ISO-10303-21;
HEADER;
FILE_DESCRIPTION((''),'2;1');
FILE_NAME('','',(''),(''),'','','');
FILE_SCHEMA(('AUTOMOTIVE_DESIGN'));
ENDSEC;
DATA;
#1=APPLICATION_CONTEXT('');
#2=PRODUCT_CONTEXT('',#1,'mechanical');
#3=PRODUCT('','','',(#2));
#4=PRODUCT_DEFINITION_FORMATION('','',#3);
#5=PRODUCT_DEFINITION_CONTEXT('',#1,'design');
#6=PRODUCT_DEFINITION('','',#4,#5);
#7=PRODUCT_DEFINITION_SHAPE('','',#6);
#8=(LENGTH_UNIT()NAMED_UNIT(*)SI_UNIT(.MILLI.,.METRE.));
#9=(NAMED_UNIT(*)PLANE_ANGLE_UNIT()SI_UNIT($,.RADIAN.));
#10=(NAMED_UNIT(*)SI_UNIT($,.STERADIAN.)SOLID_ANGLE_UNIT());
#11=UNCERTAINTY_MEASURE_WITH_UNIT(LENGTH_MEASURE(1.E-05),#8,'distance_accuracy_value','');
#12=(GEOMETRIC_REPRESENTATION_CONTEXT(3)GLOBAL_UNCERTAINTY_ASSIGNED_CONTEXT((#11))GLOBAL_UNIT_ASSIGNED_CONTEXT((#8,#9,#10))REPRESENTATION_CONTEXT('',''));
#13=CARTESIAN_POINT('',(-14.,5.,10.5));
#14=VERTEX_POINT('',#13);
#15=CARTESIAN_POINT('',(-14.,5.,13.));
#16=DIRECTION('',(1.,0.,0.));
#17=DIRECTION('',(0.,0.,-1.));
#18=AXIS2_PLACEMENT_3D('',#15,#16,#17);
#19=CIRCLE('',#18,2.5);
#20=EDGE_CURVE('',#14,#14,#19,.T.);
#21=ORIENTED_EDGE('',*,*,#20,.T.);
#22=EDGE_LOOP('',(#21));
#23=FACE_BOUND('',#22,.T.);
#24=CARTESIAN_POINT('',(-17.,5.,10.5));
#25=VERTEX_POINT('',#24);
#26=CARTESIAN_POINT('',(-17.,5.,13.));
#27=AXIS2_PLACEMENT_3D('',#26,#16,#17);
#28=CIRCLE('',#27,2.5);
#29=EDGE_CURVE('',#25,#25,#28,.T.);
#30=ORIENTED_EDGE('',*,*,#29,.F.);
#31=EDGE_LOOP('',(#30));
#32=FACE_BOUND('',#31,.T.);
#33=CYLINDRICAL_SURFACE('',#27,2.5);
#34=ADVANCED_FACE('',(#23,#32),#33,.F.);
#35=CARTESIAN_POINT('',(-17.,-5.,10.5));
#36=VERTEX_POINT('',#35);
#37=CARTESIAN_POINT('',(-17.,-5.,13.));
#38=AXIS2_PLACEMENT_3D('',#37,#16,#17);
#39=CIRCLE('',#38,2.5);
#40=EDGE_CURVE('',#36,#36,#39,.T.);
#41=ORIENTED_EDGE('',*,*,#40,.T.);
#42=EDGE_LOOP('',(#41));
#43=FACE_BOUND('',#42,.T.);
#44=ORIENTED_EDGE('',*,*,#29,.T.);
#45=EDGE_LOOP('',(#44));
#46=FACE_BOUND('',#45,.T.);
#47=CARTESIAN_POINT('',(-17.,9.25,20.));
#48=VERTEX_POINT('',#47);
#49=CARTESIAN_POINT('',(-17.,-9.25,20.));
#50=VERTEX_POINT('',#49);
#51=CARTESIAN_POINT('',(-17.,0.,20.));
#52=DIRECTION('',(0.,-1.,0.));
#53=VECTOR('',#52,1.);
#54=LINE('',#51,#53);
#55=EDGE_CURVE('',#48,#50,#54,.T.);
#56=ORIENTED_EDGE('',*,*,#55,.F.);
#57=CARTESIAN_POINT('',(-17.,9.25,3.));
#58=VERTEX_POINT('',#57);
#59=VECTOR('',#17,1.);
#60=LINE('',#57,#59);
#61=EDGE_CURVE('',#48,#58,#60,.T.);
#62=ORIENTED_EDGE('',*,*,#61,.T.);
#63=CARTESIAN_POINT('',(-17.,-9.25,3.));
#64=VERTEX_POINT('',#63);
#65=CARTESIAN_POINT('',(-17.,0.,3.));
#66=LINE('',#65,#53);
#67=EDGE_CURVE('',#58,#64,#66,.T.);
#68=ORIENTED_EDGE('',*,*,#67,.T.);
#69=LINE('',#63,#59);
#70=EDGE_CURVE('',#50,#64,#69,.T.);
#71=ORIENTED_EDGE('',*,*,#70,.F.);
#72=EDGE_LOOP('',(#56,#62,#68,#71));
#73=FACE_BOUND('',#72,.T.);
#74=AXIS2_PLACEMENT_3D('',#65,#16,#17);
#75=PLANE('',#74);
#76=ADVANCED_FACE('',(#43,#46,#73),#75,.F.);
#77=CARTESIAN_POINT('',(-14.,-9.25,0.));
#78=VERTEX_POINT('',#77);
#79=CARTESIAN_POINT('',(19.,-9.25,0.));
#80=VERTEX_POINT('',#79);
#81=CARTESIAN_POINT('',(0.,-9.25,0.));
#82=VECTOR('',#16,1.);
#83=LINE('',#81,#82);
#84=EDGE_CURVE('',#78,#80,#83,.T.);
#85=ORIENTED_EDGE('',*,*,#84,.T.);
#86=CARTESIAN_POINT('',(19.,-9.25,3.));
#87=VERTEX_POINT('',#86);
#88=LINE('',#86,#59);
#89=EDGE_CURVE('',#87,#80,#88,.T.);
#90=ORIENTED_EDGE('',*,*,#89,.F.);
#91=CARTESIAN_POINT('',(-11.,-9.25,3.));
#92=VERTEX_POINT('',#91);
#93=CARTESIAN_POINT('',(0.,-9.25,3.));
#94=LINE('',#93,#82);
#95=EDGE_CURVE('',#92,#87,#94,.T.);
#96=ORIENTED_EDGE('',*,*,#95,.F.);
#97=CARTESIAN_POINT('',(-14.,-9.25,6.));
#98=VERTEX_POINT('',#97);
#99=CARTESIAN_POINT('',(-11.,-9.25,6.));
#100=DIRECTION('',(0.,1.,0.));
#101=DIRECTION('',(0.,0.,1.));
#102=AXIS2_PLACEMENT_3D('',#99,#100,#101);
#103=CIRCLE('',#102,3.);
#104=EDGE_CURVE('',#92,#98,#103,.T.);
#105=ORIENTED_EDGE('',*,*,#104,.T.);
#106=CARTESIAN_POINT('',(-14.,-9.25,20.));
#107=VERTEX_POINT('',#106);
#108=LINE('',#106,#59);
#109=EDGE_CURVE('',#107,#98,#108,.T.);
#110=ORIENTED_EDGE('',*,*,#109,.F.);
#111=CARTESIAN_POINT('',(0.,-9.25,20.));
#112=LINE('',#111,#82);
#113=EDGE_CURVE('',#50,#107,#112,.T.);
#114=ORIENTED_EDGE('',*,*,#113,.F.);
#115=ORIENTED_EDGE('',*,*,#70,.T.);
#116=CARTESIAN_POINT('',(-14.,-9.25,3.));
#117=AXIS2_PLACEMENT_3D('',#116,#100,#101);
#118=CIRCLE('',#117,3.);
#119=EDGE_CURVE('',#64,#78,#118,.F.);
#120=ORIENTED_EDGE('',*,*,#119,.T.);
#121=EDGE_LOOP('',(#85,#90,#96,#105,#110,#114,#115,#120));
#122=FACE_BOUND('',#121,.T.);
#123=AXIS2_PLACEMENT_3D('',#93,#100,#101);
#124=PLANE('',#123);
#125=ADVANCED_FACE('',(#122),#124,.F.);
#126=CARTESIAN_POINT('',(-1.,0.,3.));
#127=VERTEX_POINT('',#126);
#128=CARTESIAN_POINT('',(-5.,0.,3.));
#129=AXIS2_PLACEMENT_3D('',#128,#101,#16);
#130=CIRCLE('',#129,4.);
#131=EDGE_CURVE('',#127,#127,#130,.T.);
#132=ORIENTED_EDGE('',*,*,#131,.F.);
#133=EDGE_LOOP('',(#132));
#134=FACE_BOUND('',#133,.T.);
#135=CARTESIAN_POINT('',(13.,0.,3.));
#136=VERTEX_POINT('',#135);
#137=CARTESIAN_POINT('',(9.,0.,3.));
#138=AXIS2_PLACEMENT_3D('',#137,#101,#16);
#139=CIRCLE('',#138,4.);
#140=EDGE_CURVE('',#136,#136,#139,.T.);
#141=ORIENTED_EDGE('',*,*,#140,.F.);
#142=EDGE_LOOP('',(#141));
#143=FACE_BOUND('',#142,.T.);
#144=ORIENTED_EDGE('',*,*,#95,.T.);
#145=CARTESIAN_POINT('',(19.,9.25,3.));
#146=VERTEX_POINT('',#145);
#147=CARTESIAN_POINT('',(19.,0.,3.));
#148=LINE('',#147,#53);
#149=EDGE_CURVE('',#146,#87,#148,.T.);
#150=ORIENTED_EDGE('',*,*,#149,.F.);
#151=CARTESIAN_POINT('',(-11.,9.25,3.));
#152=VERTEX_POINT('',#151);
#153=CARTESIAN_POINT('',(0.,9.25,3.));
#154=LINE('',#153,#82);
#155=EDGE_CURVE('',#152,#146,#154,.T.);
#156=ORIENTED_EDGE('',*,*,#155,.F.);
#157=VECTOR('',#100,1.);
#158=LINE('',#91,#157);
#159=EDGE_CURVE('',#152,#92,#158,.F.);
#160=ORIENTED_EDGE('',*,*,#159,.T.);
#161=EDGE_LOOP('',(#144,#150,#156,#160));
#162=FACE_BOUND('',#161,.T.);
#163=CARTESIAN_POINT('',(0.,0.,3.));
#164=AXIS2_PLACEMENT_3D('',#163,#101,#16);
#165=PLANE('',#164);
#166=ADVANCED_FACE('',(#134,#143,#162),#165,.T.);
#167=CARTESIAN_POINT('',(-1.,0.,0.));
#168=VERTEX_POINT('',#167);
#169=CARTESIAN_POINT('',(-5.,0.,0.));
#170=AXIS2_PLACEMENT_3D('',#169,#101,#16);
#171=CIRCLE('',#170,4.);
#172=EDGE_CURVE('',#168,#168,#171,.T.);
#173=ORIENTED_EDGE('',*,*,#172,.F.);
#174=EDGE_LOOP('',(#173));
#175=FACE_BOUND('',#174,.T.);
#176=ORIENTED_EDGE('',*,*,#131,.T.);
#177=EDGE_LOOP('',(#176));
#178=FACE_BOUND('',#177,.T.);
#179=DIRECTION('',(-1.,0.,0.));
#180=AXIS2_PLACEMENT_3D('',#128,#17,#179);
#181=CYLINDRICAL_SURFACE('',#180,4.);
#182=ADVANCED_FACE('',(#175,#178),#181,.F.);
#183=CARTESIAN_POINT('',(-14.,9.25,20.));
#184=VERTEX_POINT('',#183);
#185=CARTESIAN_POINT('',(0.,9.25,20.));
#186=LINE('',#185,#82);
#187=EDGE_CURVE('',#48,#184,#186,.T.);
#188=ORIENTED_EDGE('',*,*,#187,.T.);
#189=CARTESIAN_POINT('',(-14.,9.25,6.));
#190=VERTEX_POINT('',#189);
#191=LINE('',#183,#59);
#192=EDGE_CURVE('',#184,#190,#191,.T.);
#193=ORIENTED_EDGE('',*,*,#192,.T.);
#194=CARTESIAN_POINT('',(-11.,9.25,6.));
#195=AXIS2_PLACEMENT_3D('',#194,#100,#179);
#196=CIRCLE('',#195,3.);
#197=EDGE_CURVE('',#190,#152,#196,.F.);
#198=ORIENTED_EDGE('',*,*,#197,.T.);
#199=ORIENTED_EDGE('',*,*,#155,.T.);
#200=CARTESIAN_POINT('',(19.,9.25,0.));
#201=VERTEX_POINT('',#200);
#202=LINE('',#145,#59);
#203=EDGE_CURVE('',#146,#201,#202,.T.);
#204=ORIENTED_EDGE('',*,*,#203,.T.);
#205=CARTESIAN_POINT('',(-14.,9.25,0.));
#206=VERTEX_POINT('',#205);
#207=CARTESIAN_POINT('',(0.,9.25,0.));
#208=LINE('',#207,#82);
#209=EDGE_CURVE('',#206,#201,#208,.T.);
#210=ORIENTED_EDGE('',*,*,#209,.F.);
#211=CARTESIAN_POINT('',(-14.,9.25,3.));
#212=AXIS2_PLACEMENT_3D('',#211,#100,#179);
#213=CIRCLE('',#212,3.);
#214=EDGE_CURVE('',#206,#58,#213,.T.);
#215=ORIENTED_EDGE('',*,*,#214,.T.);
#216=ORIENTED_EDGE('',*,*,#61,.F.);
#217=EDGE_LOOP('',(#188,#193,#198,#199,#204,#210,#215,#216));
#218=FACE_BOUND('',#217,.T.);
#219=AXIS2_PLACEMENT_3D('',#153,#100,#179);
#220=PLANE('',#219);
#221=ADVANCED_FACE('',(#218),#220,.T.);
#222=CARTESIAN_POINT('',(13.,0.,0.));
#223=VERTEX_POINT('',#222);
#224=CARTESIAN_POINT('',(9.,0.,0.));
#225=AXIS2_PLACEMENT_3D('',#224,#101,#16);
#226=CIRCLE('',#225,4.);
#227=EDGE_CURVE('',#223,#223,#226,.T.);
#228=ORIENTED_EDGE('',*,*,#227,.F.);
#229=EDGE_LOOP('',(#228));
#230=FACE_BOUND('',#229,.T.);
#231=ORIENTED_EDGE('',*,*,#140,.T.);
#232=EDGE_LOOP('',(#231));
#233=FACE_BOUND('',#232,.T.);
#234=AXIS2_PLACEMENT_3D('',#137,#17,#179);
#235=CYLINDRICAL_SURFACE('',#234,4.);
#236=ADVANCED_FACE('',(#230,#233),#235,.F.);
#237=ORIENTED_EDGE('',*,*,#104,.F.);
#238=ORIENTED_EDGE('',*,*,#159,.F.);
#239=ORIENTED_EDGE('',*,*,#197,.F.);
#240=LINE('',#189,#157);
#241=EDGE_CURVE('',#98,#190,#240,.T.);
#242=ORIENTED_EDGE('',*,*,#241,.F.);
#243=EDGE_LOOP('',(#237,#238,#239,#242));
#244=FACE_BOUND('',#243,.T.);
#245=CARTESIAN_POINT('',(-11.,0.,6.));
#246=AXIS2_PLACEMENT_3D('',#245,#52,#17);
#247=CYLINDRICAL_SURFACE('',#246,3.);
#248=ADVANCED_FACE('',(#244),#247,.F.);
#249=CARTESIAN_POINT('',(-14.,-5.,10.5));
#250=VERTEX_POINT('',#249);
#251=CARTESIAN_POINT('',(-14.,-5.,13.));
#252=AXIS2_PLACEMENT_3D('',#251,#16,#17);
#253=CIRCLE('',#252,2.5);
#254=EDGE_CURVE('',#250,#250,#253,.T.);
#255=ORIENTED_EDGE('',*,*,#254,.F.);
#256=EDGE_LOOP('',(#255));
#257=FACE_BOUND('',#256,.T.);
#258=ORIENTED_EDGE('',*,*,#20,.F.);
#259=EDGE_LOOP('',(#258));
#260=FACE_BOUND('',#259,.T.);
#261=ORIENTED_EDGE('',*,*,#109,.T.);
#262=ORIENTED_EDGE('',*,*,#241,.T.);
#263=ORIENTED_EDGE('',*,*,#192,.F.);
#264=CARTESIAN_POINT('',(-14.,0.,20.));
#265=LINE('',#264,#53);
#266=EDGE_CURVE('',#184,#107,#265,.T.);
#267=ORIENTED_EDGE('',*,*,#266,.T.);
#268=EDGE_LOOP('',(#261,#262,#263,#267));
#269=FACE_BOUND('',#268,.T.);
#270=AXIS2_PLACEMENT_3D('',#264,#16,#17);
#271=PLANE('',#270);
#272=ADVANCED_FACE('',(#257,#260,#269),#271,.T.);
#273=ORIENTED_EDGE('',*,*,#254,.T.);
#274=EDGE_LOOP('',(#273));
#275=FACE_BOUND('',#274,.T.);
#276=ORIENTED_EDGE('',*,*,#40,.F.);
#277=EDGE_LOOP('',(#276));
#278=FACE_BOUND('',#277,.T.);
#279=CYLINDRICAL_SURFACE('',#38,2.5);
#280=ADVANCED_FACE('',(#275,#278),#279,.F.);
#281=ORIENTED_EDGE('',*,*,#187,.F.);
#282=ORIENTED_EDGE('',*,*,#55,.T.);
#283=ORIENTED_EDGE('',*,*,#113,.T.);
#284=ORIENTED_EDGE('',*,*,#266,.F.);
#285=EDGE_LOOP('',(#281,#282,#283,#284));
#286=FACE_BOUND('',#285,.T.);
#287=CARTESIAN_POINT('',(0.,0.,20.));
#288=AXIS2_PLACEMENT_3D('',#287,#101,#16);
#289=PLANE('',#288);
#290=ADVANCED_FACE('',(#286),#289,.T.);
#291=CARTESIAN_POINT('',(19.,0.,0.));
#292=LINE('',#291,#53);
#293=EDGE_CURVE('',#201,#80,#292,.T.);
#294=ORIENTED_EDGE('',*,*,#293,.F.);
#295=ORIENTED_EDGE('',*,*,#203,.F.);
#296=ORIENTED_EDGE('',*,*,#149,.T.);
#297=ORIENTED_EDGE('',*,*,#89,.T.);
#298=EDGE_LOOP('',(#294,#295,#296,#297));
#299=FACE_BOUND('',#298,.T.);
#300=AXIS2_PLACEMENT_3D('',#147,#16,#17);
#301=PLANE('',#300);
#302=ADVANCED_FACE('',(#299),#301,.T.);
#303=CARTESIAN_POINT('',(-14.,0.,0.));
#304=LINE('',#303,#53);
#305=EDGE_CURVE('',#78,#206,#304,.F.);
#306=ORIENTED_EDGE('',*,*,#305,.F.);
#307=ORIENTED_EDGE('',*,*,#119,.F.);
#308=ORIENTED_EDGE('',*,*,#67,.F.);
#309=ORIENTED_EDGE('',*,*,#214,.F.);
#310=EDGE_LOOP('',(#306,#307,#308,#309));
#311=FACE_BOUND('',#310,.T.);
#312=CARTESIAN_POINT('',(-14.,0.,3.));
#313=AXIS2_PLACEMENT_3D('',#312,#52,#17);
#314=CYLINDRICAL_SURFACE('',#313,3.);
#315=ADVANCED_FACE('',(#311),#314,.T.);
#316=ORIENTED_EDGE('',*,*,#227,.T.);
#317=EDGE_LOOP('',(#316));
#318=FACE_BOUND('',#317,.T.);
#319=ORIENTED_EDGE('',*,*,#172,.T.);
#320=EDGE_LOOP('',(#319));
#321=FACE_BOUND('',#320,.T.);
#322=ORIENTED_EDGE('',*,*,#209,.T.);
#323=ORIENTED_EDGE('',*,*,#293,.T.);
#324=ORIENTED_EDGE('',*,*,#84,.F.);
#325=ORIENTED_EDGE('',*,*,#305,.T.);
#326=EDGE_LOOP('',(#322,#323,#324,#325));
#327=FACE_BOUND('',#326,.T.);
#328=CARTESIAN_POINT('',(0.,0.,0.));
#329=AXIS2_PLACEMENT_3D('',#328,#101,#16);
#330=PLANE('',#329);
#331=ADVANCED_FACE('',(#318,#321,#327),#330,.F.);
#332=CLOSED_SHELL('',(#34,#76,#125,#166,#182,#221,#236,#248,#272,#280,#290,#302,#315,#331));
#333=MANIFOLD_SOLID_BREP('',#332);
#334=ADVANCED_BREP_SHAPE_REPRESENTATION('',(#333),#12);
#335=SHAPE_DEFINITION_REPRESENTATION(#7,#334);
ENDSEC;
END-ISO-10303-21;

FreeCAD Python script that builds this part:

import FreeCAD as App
import Part
import Sketcher

V = App.Vector
Q = App.Units.Quantity


def edges_at(feature, points):
    """Names of the edges that pass closest to the given points."""
    edges = feature.Shape.Edges
    near = lambda p: min(range(len(edges)), key=lambda i: edges[i].distToShape(Part.Vertex(*p))[0])
    return sorted({f"Edge{near(p) + 1}" for p in points})


def add_polygon(sketch, points):
    """Adds a closed chain of lines whose ends are joined by coincident constraints."""
    first, n = sketch.GeometryCount, len(points)
    for a, b in zip(points, points[1:] + points[:1]):
        sketch.addGeometry(Part.LineSegment(App.Vector(*a, 0), App.Vector(*b, 0)), False)
    for i in range(n):
        sketch.addConstraint(Sketcher.Constraint("Coincident", first + i, 2, first + (i + 1) % n, 1))

doc = App.newDocument("Part")
body = doc.addObject("PartDesign::Body", "Body")

sketch1 = body.newObject("Sketcher::SketchObject", "Sketch")
sketch1.AttachmentSupport = (doc.getObject("XY_Plane"), [""])
sketch1.MapMode = "FlatFace"
add_polygon(sketch1, [(19, -9.2), (19, 9.2), (-17, 9.2), (-17, -9.2)])
sketch1.addGeometry(Part.Circle(V(-5, 0, 0), V(0, 0, 1), 4), False)
sketch1.addGeometry(Part.Circle(V(9, 0, 0), V(0, 0, 1), 4), False)
sketch1.addConstraint([
    Sketcher.Constraint("Vertical", 0),
    Sketcher.Constraint("Horizontal", 1),
    Sketcher.Constraint("Vertical", 2),
    Sketcher.Constraint("Horizontal", 3),
    Sketcher.Constraint("Equal", 4, 5),
    Sketcher.Constraint("PointOnObject", 4, 3, -1),
    Sketcher.Constraint("PointOnObject", 5, 3, -1),
    Sketcher.Constraint("Diameter", 4, Q("8 mm")),
    Sketcher.Constraint("DistanceX", 1, 2, 1, 1, Q("36 mm")),
    Sketcher.Constraint("DistanceY", 0, 1, 0, 2, Q("18.5 mm")),
    Sketcher.Constraint("DistanceX", 4, 3, -1, 1, Q("5 mm")),
    Sketcher.Constraint("DistanceX", -1, 1, 5, 3, Q("9 mm")),
    Sketcher.Constraint("DistanceX", -1, 1, 0, 2, Q("19 mm")),
    Sketcher.Constraint("DistanceY", -1, 1, 0, 2, Q("9.25 mm")),
])
pad1 = body.newObject("PartDesign::Pad", "Pad")
pad1.Profile = sketch1
pad1.Length = 3

sketch2 = body.newObject("Sketcher::SketchObject", "Sketch001")
sketch2.AttachmentSupport = (doc.getObject("XY_Plane"), [""])
sketch2.MapMode = "FlatFace"
add_polygon(sketch2, [(-17, 9.2), (-17, -9.2), (-14, -9.2), (-14, 9.2)])
sketch2.addConstraint([
    Sketcher.Constraint("Vertical", 0),
    Sketcher.Constraint("Horizontal", 1),
    Sketcher.Constraint("Vertical", 2),
    Sketcher.Constraint("Horizontal", 3),
    Sketcher.Constraint("DistanceX", 1, 1, 1, 2, Q("3 mm")),
    Sketcher.Constraint("DistanceY", 0, 2, 0, 1, Q("18.5 mm")),
    Sketcher.Constraint("DistanceX", 0, 2, -1, 1, Q("17 mm")),
    Sketcher.Constraint("DistanceY", 0, 2, -1, 1, Q("9.25 mm")),
])
pad2 = body.newObject("PartDesign::Pad", "Pad001")
pad2.Profile = sketch2
pad2.Length = 20
doc.recompute()

fillet = body.newObject("PartDesign::Fillet", "Fillet")
fillet.Base = (pad2, edges_at(pad2, [(-14, 0, 3), (-17, 0, 0)]))
fillet.Radius = 3

sketch3 = body.newObject("Sketcher::SketchObject", "Sketch002")
sketch3.AttachmentSupport = (doc.getObject("YZ_Plane"), [""])
sketch3.MapMode = "FlatFace"
sketch3.AttachmentOffset = App.Placement(V(0, 0, -14), App.Rotation())
sketch3.addGeometry([
    Part.Circle(V(5, 13, 0), V(0, 0, 1), 2.5),
    Part.Circle(V(-5, 13, 0), V(0, 0, 1), 2.5),
], False)
sketch3.addConstraint([
    Sketcher.Constraint("Equal", 0, 1),
    Sketcher.Constraint("Symmetric", 0, 3, 1, 3, -2),
    Sketcher.Constraint("Diameter", 0, Q("5 mm")),
    Sketcher.Constraint("DistanceX", -1, 1, 0, 3, Q("5 mm")),
    Sketcher.Constraint("DistanceY", -1, 1, 0, 3, Q("13 mm")),
])
pocket1 = body.newObject("PartDesign::Pocket", "Pocket")
pocket1.Profile = sketch3
pocket1.Type = "ThroughAll"

doc.recompute()
